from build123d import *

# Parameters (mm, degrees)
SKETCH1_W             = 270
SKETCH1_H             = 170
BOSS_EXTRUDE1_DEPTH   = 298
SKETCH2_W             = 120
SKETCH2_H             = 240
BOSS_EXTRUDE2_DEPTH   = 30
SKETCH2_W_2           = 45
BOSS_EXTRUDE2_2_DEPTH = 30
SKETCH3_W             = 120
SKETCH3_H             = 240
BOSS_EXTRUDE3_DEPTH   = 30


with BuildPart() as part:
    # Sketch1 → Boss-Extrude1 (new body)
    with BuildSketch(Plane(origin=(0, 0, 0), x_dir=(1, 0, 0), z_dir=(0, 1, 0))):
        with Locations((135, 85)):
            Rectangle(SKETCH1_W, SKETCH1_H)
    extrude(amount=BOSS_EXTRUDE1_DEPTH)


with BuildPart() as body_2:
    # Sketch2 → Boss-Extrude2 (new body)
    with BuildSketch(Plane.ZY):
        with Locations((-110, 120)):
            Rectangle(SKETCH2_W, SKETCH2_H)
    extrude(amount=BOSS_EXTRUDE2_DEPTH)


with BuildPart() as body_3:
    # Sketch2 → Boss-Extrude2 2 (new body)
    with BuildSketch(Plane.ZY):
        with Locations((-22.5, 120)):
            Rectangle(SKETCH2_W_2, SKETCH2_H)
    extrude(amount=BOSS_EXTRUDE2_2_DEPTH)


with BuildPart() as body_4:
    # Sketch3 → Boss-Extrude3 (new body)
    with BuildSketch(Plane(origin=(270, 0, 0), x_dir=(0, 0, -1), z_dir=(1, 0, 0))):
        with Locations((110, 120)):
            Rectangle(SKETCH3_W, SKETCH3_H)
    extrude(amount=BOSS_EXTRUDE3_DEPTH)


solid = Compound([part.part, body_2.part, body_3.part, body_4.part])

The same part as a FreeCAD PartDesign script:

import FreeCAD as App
import Part
import Sketcher

V = App.Vector


def add_polygon(sketch, points):
    """Adds a closed chain of lines whose ends are joined by coincident constraints."""
    first, n = sketch.GeometryCount, len(points)
    for a, b in zip(points, points[1:] + points[:1]):
        sketch.addGeometry(Part.LineSegment(App.Vector(*a, 0), App.Vector(*b, 0)), False)
    for i in range(n):
        sketch.addConstraint(Sketcher.Constraint("Coincident", first + i, 2, first + (i + 1) % n, 1))

doc = App.newDocument("Part")
body = doc.addObject("PartDesign::Body", "Body")

sketch1 = doc.addObject("Sketcher::SketchObject", "Sketch")
body.addObject(sketch1)
sketch1.AttachmentSupport = (doc.XZ_Plane, [""])
sketch1.MapMode = "FlatFace"
add_polygon(sketch1, [(0, -170), (0, 0), (270, 0), (270, -170)])
sketch1.addConstraint([
    Sketcher.Constraint("Vertical", 0),
    Sketcher.Constraint("Horizontal", 1),
    Sketcher.Constraint("Vertical", 2),
    Sketcher.Constraint("Horizontal", 3),
    Sketcher.Constraint("Coincident", 0, 2, -1, 1),
    Sketcher.Constraint("DistanceX", 1, 1, 1, 2, 270.0),
    Sketcher.Constraint("DistanceY", 0, 1, 0, 2, 170.0),
])
pad1 = doc.addObject("PartDesign::Pad", "Pad")
body.addObject(pad1)
pad1.Profile = sketch1
pad1.Length = 298
pad1.Reversed = True
body2 = doc.addObject("PartDesign::Body", "Body001")

sketch2 = doc.addObject("Sketcher::SketchObject", "Sketch001")
body2.addObject(sketch2)
sketch2.AttachmentSupport = (doc.getObject("YZ_Plane001"), [""])
sketch2.MapMode = "FlatFace"
add_polygon(sketch2, [(240, -170), (0, -170), (0, -50), (240, -50)])
sketch2.addConstraint([
    Sketcher.Constraint("Horizontal", 0),
    Sketcher.Constraint("Vertical", 1),
    Sketcher.Constraint("Horizontal", 2),
    Sketcher.Constraint("Vertical", 3),
    Sketcher.Constraint("PointOnObject", 0, 2, -2),
    Sketcher.Constraint("DistanceX", 0, 2, 0, 1, 240.0),
    Sketcher.Constraint("DistanceY", 1, 1, 1, 2, 120.0),
    Sketcher.Constraint("DistanceY", 0, 2, -1, 1, 170.0),
])
pad2 = doc.addObject("PartDesign::Pad", "Pad001")
body2.addObject(pad2)
pad2.Profile = sketch2
pad2.Length = 30
pad2.Reversed = True
body3 = doc.addObject("PartDesign::Body", "Body002")

sketch3 = doc.addObject("Sketcher::SketchObject", "Sketch002")
body3.addObject(sketch3)
sketch3.AttachmentSupport = (doc.getObject("YZ_Plane002"), [""])
sketch3.MapMode = "FlatFace"
add_polygon(sketch3, [(240, -45), (0, -45), (0, 0), (240, 0)])
sketch3.addConstraint([
    Sketcher.Constraint("Horizontal", 0),
    Sketcher.Constraint("Vertical", 1),
    Sketcher.Constraint("Horizontal", 2),
    Sketcher.Constraint("Vertical", 3),
    Sketcher.Constraint("Coincident", 1, 2, -1, 1),
    Sketcher.Constraint("DistanceX", 0, 2, 0, 1, 240.0),
    Sketcher.Constraint("DistanceY", 1, 1, 1, 2, 45.0),
])
pad3 = doc.addObject("PartDesign::Pad", "Pad002")
body3.addObject(pad3)
pad3.Profile = sketch3
pad3.Length = 30
pad3.Reversed = True
body4 = doc.addObject("PartDesign::Body", "Body003")

sketch4 = doc.addObject("Sketcher::SketchObject", "Sketch003")
body4.addObject(sketch4)
sketch4.AttachmentSupport = (doc.getObject("YZ_Plane003"), [""])
sketch4.MapMode = "FlatFace"
sketch4.AttachmentOffset = App.Placement(V(0, 0, 270), App.Rotation())
add_polygon(sketch4, [(240, -50), (0, -50), (0, -170), (240, -170)])
sketch4.addConstraint([
    Sketcher.Constraint("Horizontal", 0),
    Sketcher.Constraint("Vertical", 1),
    Sketcher.Constraint("Horizontal", 2),
    Sketcher.Constraint("Vertical", 3),
    Sketcher.Constraint("PointOnObject", 0, 2, -2),
    Sketcher.Constraint("DistanceX", 0, 2, 0, 1, 240.0),
    Sketcher.Constraint("DistanceY", 1, 2, 1, 1, 120.0),
    Sketcher.Constraint("DistanceY", 0, 2, -1, 1, 50.0),
])
pad4 = doc.addObject("PartDesign::Pad", "Pad003")
body4.addObject(pad4)
pad4.Profile = sketch4
pad4.Length = 30

doc.recompute()
